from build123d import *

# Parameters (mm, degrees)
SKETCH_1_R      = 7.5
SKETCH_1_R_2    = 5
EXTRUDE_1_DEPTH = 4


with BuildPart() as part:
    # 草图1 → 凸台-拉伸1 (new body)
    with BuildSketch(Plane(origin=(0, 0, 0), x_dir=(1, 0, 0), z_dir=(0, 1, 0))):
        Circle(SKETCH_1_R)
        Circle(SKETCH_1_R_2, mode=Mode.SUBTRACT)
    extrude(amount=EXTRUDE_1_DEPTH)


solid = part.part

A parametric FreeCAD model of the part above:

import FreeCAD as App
import Part
import Sketcher

doc = App.newDocument("Part")
body = doc.addObject("PartDesign::Body", "Body")

sketch1 = body.newObject("Sketcher::SketchObject", "Sketch")
sketch1.AttachmentSupport = (doc.getObject("XZ_Plane"), [""])
sketch1.MapMode = "FlatFace"
sketch1.addGeometry(Part.Circle(App.Vector(0, 0, 0), App.Vector(0, 0, 1), 8), False)
sketch1.addGeometry(Part.Circle(App.Vector(0, 0, 0), App.Vector(0, 0, 1), 5), False)
sketch1.addConstraint(Sketcher.Constraint("Coincident", 0, 3, -1, 1))
sketch1.addConstraint(Sketcher.Constraint("Coincident", 1, 3, -1, 1))
sketch1.addConstraint(Sketcher.Constraint("Diameter", 0, 15.0))
sketch1.addConstraint(Sketcher.Constraint("Diameter", 1, 10.0))
pad1 = body.newObject("PartDesign::Pad", "Pad")
pad1.Profile = sketch1
pad1.Length = 4
pad1.Reversed = True

doc.recompute()
